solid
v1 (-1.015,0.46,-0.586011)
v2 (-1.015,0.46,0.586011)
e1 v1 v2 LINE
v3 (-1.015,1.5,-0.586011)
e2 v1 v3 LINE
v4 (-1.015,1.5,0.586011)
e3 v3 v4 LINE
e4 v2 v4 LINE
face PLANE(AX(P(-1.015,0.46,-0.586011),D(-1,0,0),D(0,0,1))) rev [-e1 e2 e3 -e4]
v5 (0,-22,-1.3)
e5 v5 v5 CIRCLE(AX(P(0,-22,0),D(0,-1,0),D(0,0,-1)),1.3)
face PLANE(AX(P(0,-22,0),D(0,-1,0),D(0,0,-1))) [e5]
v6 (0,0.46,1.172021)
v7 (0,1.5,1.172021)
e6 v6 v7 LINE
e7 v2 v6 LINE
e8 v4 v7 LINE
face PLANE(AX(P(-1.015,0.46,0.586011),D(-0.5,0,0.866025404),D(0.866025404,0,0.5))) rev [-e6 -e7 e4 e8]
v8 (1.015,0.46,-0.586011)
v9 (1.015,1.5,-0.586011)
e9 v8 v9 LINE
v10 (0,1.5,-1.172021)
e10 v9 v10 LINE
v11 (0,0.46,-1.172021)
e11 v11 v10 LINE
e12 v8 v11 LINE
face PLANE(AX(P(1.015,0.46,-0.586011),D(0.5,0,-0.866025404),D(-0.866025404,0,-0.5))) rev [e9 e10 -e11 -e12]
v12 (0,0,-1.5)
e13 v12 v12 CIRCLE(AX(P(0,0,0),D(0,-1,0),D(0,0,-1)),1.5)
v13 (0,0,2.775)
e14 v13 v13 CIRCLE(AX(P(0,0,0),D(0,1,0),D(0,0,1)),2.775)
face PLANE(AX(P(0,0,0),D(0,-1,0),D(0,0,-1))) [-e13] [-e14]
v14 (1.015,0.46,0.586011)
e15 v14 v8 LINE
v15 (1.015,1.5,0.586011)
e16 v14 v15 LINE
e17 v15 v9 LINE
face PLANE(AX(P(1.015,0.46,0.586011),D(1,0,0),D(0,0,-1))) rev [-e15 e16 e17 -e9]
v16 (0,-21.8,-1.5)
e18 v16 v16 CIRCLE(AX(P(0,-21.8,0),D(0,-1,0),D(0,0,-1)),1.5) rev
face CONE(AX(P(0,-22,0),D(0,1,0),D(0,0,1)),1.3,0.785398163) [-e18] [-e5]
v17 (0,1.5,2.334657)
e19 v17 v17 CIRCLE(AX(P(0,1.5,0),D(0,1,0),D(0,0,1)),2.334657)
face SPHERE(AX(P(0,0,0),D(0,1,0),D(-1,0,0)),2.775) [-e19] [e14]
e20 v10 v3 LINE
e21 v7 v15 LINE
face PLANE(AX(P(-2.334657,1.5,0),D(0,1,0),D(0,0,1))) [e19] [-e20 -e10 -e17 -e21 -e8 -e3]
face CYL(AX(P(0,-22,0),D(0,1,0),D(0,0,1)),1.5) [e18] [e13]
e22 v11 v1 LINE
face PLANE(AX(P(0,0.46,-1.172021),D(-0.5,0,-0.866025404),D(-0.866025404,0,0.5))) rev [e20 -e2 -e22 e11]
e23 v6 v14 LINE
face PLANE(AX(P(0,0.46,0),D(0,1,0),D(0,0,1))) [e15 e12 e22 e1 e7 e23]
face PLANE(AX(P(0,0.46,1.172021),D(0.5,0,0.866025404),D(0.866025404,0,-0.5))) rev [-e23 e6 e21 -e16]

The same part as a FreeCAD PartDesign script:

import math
import FreeCAD as App
import Part
import Sketcher

V = App.Vector
Q = App.Units.Quantity


def edges_at(feature, points):
    """Names of the edges that pass closest to the given points."""
    edges = feature.Shape.Edges
    near = lambda p: min(range(len(edges)), key=lambda i: edges[i].distToShape(Part.Vertex(*p))[0])
    return sorted({f"Edge{near(p) + 1}" for p in points})


def add_polygon(sketch, points):
    """Adds a closed chain of lines whose ends are joined by coincident constraints."""
    first, n = sketch.GeometryCount, len(points)
    for a, b in zip(points, points[1:] + points[:1]):
        sketch.addGeometry(Part.LineSegment(App.Vector(*a, 0), App.Vector(*b, 0)), False)
    for i in range(n):
        sketch.addConstraint(Sketcher.Constraint("Coincident", first + i, 2, first + (i + 1) % n, 1))

doc = App.newDocument("Part")
params = doc.addObject("Spreadsheet::Sheet", "Params")
for row, (alias, value) in enumerate([
    ("sketch1_height", "1.5 mm"),
    ("revolution_angle", "360 deg"),
    ("sketch2_diameter", "3 mm"),
    ("pad1_length", "22 mm"),
    ("pocket1_length", "1.04 mm"),
    ("chamfer_size", "0.2 mm"),
], start=1):
    params.set(f"A{row}", alias)
    params.set(f"B{row}", "=" + value)
    params.setAlias(f"B{row}", alias)

body = doc.addObject("PartDesign::Body", "Body")

# Sketch on XY plane
sketch1 = body.newObject("Sketcher::SketchObject", "Sketch")
sketch1.AttachmentSupport = (doc.getObject("XY_Plane"), [""])
sketch1.MapMode = "FlatFace"
sketch1.addGeometry([
    Part.LineSegment(V(-2.8, 0, 0), V(0, 0, 0)),
    Part.LineSegment(V(0, 0, 0), V(0, 1.5, 0)),
    Part.LineSegment(V(0, 1.5, 0), V(-2.3, 1.5, 0)),
    Part.ArcOfCircle(Part.Circle(V(0, 0, 0), V(0, 0, 1), 2.8), math.radians(147), math.radians(180)),
], False)
sketch1.addConstraint([
    Sketcher.Constraint("Coincident", 0, 2, 1, 1),
    Sketcher.Constraint("Coincident", 1, 2, 2, 1),
    Sketcher.Constraint("Coincident", 2, 2, 3, 1),
    Sketcher.Constraint("Coincident", 3, 2, 0, 1),
    Sketcher.Constraint("Horizontal", 0),
    Sketcher.Constraint("Vertical", 1),
    Sketcher.Constraint("Horizontal", 2),
    Sketcher.Constraint("Coincident", 3, 3, -1, 1),
    Sketcher.Constraint("Coincident", 0, 2, -1, 1),
    Sketcher.Constraint("DistanceY", 1, 1, 1, 2, Q("1.5 mm")),
    Sketcher.Constraint("Radius", 3, Q("2.775 mm")),
])
sketch1.setExpression("Constraints[9]", "Params.sketch1_height")
revolution = body.newObject("PartDesign::Revolution", "Revolution")
revolution.Profile = sketch1
revolution.ReferenceAxis = (sketch1, ["V_Axis"])
revolution.setExpression("Angle", "Params.revolution_angle")

# Sketch on XZ plane
sketch2 = body.newObject("Sketcher::SketchObject", "Sketch001")
sketch2.AttachmentSupport = (doc.getObject("XZ_Plane"), [""])
sketch2.MapMode = "FlatFace"
sketch2.addGeometry(Part.Circle(V(0, 0, 0), V(0, 0, 1), 1.5), False)
sketch2.addConstraint([
    Sketcher.Constraint("Coincident", 0, 3, -1, 1),
    Sketcher.Constraint("Diameter", 0, Q("3 mm")),
])
sketch2.setExpression("Constraints[1]", "Params.sketch2_diameter")
pad1 = body.newObject("PartDesign::Pad", "Pad")
pad1.Profile = sketch2
pad1.setExpression("Length", "Params.pad1_length")

# Sketch on XZ plane
sketch3 = body.newObject("Sketcher::SketchObject", "Sketch002")
sketch3.AttachmentSupport = (doc.getObject("XZ_Plane"), [""])
sketch3.MapMode = "FlatFace"
sketch3.AttachmentOffset = App.Placement(V(0, 0, -1.5), App.Rotation())
add_polygon(sketch3, [(0, -1.2), (-1, -0.6), (-1, 0.6), (0, 1.2), (1, 0.6), (1, -0.6)])  # lines 0-5
sketch3.addConstraint([
    Sketcher.Constraint("Vertical", 1),
    Sketcher.Constraint("Vertical", 4),
    Sketcher.Constraint("Symmetric", 0, 2, 3, 2, -1, 1),
    Sketcher.Constraint("Symmetric", 2, 2, 5, 2, -1, 1),
    Sketcher.Constraint("PointOnObject", 2, 2, -2),
    Sketcher.Constraint("Parallel", 2, 5),
    Sketcher.Constraint("Horizontal", 1, 2, 3, 2),
    Sketcher.Constraint("Angle", 0, Q("150 deg")),
    Sketcher.Constraint("DistanceX", 1, 2, 3, 2, Q("2.03 mm")),
    Sketcher.Constraint("DistanceY", 1, 1, 1, 2, Q("1.172021 mm")),
])
pocket1 = body.newObject("PartDesign::Pocket", "Pocket")
pocket1.Profile = sketch3
pocket1.setExpression("Length", "Params.pocket1_length")
pocket1.Reversed = True
doc.recompute()

chamfer = body.newObject("PartDesign::Chamfer", "Chamfer")
chamfer.Base = (pocket1, edges_at(pocket1, [(0, -22, 1.5)]))
chamfer.setExpression("Size", "Params.chamfer_size")

doc.recompute()
